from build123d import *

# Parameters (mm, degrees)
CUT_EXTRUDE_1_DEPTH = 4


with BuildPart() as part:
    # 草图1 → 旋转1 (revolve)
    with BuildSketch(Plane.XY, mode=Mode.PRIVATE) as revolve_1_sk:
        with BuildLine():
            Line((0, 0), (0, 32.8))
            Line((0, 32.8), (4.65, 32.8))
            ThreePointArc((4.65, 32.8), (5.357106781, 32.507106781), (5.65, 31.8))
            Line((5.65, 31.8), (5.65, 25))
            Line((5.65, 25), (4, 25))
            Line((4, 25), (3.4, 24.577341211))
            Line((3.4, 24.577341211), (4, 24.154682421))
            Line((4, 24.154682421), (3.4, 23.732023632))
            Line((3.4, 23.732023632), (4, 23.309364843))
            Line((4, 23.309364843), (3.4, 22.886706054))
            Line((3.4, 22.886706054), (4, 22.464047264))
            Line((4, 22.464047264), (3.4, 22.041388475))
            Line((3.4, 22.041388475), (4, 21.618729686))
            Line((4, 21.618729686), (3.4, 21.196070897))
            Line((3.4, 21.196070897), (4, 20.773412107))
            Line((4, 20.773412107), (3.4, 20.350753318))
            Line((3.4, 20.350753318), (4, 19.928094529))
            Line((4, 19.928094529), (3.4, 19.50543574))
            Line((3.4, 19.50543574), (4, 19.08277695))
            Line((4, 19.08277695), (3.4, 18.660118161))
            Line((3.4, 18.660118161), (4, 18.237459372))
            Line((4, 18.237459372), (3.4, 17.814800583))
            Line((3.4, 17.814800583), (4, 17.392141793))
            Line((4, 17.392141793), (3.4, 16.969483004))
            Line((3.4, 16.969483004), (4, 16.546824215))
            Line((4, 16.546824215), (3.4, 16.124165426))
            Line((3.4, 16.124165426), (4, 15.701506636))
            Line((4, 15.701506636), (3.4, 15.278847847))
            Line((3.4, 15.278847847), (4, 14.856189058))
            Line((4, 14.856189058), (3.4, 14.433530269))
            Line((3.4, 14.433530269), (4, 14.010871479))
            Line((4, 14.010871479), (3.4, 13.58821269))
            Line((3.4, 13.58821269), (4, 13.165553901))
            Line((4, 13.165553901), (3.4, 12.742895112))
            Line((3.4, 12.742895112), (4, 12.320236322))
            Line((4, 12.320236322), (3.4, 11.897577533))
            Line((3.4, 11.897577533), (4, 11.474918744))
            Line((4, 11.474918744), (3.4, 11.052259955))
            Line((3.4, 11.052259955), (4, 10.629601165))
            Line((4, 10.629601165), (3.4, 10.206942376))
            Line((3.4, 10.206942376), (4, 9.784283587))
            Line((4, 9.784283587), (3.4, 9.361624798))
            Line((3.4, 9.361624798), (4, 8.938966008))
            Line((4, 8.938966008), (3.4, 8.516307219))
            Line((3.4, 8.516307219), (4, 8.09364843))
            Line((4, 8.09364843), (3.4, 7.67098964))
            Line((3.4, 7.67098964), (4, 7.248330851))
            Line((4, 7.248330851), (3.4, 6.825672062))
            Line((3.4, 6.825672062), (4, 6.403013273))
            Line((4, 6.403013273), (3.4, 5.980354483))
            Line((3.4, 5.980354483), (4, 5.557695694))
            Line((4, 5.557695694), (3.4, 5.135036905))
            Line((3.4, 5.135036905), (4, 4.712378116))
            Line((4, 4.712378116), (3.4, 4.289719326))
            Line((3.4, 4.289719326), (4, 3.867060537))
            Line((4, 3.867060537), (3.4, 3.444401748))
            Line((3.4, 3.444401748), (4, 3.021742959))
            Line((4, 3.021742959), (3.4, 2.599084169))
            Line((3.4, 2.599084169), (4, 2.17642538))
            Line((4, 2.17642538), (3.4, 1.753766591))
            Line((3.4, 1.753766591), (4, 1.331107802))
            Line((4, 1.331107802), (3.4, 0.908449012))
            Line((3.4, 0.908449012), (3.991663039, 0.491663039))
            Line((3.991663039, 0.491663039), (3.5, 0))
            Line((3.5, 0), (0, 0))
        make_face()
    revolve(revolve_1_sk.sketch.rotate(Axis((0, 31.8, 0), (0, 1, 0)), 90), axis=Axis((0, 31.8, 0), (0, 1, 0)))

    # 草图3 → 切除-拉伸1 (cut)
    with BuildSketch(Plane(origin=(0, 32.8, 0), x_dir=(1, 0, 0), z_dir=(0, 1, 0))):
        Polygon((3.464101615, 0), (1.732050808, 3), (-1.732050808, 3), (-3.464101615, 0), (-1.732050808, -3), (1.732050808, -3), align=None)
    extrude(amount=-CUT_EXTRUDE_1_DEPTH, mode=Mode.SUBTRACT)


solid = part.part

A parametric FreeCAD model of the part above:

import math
import FreeCAD as App
import Part
import Sketcher
from FreeCAD import Vector
Q = App.Units.Quantity


def add_polygon(sketch, points):
    """Adds a closed chain of lines whose ends are joined by coincident constraints."""
    first, n = sketch.GeometryCount, len(points)
    for a, b in zip(points, points[1:] + points[:1]):
        sketch.addGeometry(Part.LineSegment(App.Vector(*a, 0), App.Vector(*b, 0)), False)
    for i in range(n):
        sketch.addConstraint(Sketcher.Constraint("Coincident", first + i, 2, first + (i + 1) % n, 1))

doc = App.newDocument("Part")
body = doc.addObject("PartDesign::Body", "Body")

# Sketch on XY plane
sketch1 = body.newObject("Sketcher::SketchObject", "Sketch")
sketch1.AttachmentSupport = (doc.getObject("XY_Plane"), [""])
sketch1.MapMode = "FlatFace"
sketch1.addGeometry(Part.LineSegment(Vector(0, 32.8, 0), Vector(0, 0, 0)), False)
sketch1.addGeometry(Part.LineSegment(Vector(0, 0, 0), Vector(3.5, 0, 0)), False)
sketch1.addGeometry(Part.LineSegment(Vector(3.5, 0, 0), Vector(4, 0.5, 0)), False)
sketch1.addGeometry(Part.LineSegment(Vector(4, 0.5, 0), Vector(3.4, 0.9, 0)), False)
sketch1.addGeometry(Part.LineSegment(Vector(3.4, 0.9, 0), Vector(4, 1.3, 0)), False)
sketch1.addGeometry(Part.LineSegment(Vector(4, 1.3, 0), Vector(3.4, 1.8, 0)), False)
sketch1.addGeometry(Part.LineSegment(Vector(3.4, 1.8, 0), Vector(4, 2.2, 0)), False)
sketch1.addGeometry(Part.LineSegment(Vector(4, 2.2, 0), Vector(3.4, 2.6, 0)), False)
sketch1.addGeometry(Part.LineSegment(Vector(3.4, 2.6, 0), Vector(4, 3, 0)), False)
sketch1.addGeometry(Part.LineSegment(Vector(4, 3, 0), Vector(3.4, 3.4, 0)), False)
sketch1.addGeometry(Part.LineSegment(Vector(3.4, 3.4, 0), Vector(4, 3.9, 0)), False)
sketch1.addGeometry(Part.LineSegment(Vector(4, 3.9, 0), Vector(3.4, 4.3, 0)), False)
sketch1.addGeometry(Part.LineSegment(Vector(3.4, 4.3, 0), Vector(4, 4.7, 0)), False)
sketch1.addGeometry(Part.LineSegment(Vector(4, 4.7, 0), Vector(3.4, 5.1, 0)), False)
sketch1.addGeometry(Part.LineSegment(Vector(3.4, 5.1, 0), Vector(4, 5.6, 0)), False)
sketch1.addGeometry(Part.LineSegment(Vector(4, 5.6, 0), Vector(3.4, 6, 0)), False)
sketch1.addGeometry(Part.LineSegment(Vector(3.4, 6, 0), Vector(4, 6.4, 0)), False)
sketch1.addGeometry(Part.LineSegment(Vector(4, 6.4, 0), Vector(3.4, 6.8, 0)), False)
sketch1.addGeometry(Part.LineSegment(Vector(3.4, 6.8, 0), Vector(4, 7.2, 0)), False)
sketch1.addGeometry(Part.LineSegment(Vector(4, 7.2, 0), Vector(3.4, 7.7, 0)), False)
sketch1.addGeometry(Part.LineSegment(Vector(3.4, 7.7, 0), Vector(4, 8.1, 0)), False)
sketch1.addGeometry(Part.LineSegment(Vector(4, 8.1, 0), Vector(3.4, 8.5, 0)), False)
sketch1.addGeometry(Part.LineSegment(Vector(3.4, 8.5, 0), Vector(4, 8.9, 0)), False)
sketch1.addGeometry(Part.LineSegment(Vector(4, 8.9, 0), Vector(3.4, 9.4, 0)), False)
sketch1.addGeometry(Part.LineSegment(Vector(3.4, 9.4, 0), Vector(4, 9.8, 0)), False)
sketch1.addGeometry(Part.LineSegment(Vector(4, 9.8, 0), Vector(3.4, 10.2, 0)), False)
sketch1.addGeometry(Part.LineSegment(Vector(3.4, 10.2, 0), Vector(4, 10.6, 0)), False)
sketch1.addGeometry(Part.LineSegment(Vector(4, 10.6, 0), Vector(3.4, 11.1, 0)), False)
sketch1.addGeometry(Part.LineSegment(Vector(3.4, 11.1, 0), Vector(4, 11.5, 0)), False)
sketch1.addGeometry(Part.LineSegment(Vector(4, 11.5, 0), Vector(3.4, 11.9, 0)), False)
sketch1.addGeometry(Part.LineSegment(Vector(3.4, 11.9, 0), Vector(4, 12.3, 0)), False)
sketch1.addGeometry(Part.LineSegment(Vector(4, 12.3, 0), Vector(3.4, 12.7, 0)), False)
sketch1.addGeometry(Part.LineSegment(Vector(3.4, 12.7, 0), Vector(4, 13.2, 0)), False)
sketch1.addGeometry(Part.LineSegment(Vector(4, 13.2, 0), Vector(3.4, 13.6, 0)), False)
sketch1.addGeometry(Part.LineSegment(Vector(3.4, 13.6, 0), Vector(4, 14, 0)), False)
sketch1.addGeometry(Part.LineSegment(Vector(4, 14, 0), Vector(3.4, 14.4, 0)), False)
sketch1.addGeometry(Part.LineSegment(Vector(3.4, 14.4, 0), Vector(4, 14.9, 0)), False)
sketch1.addGeometry(Part.LineSegment(Vector(4, 14.9, 0), Vector(3.4, 15.3, 0)), False)
sketch1.addGeometry(Part.LineSegment(Vector(3.4, 15.3, 0), Vector(4, 15.7, 0)), False)
sketch1.addGeometry(Part.LineSegment(Vector(4, 15.7, 0), Vector(3.4, 16.1, 0)), False)
sketch1.addGeometry(Part.LineSegment(Vector(3.4, 16.1, 0), Vector(4, 16.5, 0)), False)
sketch1.addGeometry(Part.LineSegment(Vector(4, 16.5, 0), Vector(3.4, 17, 0)), False)
sketch1.addGeometry(Part.LineSegment(Vector(3.4, 17, 0), Vector(4, 17.4, 0)), False)
sketch1.addGeometry(Part.LineSegment(Vector(4, 17.4, 0), Vector(3.4, 17.8, 0)), False)
sketch1.addGeometry(Part.LineSegment(Vector(3.4, 17.8, 0), Vector(4, 18.2, 0)), False)
sketch1.addGeometry(Part.LineSegment(Vector(4, 18.2, 0), Vector(3.4, 18.7, 0)), False)
sketch1.addGeometry(Part.LineSegment(Vector(3.4, 18.7, 0), Vector(4, 19.1, 0)), False)
sketch1.addGeometry(Part.LineSegment(Vector(4, 19.1, 0), Vector(3.4, 19.5, 0)), False)
sketch1.addGeometry(Part.LineSegment(Vector(3.4, 19.5, 0), Vector(4, 19.9, 0)), False)
sketch1.addGeometry(Part.LineSegment(Vector(4, 19.9, 0), Vector(3.4, 20.4, 0)), False)
sketch1.addGeometry(Part.LineSegment(Vector(3.4, 20.4, 0), Vector(4, 20.8, 0)), False)
sketch1.addGeometry(Part.LineSegment(Vector(4, 20.8, 0), Vector(3.4, 21.2, 0)), False)
sketch1.addGeometry(Part.LineSegment(Vector(3.4, 21.2, 0), Vector(4, 21.6, 0)), False)
sketch1.addGeometry(Part.LineSegment(Vector(4, 21.6, 0), Vector(3.4, 22, 0)), False)
sketch1.addGeometry(Part.LineSegment(Vector(3.4, 22, 0), Vector(4, 22.5, 0)), False)
sketch1.addGeometry(Part.LineSegment(Vector(4, 22.5, 0), Vector(3.4, 22.9, 0)), False)
sketch1.addGeometry(Part.LineSegment(Vector(3.4, 22.9, 0), Vector(4, 23.3, 0)), False)
sketch1.addGeometry(Part.LineSegment(Vector(4, 23.3, 0), Vector(3.4, 23.7, 0)), False)
sketch1.addGeometry(Part.LineSegment(Vector(3.4, 23.7, 0), Vector(4, 24.2, 0)), False)
sketch1.addGeometry(Part.LineSegment(Vector(4, 24.2, 0), Vector(3.4, 24.6, 0)), False)
sketch1.addGeometry(Part.LineSegment(Vector(3.4, 24.6, 0), Vector(4, 25, 0)), False)
sketch1.addGeometry(Part.LineSegment(Vector(4, 25, 0), Vector(5.7, 25, 0)), False)
sketch1.addGeometry(Part.LineSegment(Vector(5.7, 25, 0), Vector(5.7, 31.8, 0)), False)
sketch1.addGeometry(Part.ArcOfCircle(Part.Circle(Vector(4.6, 31.8, 0), Vector(0, 0, 1), 1), math.radians(0), math.radians(90)), False)
sketch1.addGeometry(Part.LineSegment(Vector(4.7, 32.8, 0), Vector(0, 32.8, 0)), False)
sketch1.addConstraint(Sketcher.Constraint("Coincident", 0, 2, 1, 1))
sketch1.addConstraint(Sketcher.Constraint("Coincident", 1, 2, 2, 1))
sketch1.addConstraint(Sketcher.Constraint("Coincident", 2, 2, 3, 1))
sketch1.addConstraint(Sketcher.Constraint("Coincident", 3, 2, 4, 1))
sketch1.addConstraint(Sketcher.Constraint("Coincident", 4, 2, 5, 1))
sketch1.addConstraint(Sketcher.Constraint("Coincident", 5, 2, 6, 1))
sketch1.addConstraint(Sketcher.Constraint("Coincident", 6, 2, 7, 1))
sketch1.addConstraint(Sketcher.Constraint("Coincident", 7, 2, 8, 1))
sketch1.addConstraint(Sketcher.Constraint("Coincident", 8, 2, 9, 1))
sketch1.addConstraint(Sketcher.Constraint("Coincident", 9, 2, 10, 1))
sketch1.addConstraint(Sketcher.Constraint("Coincident", 10, 2, 11, 1))
sketch1.addConstraint(Sketcher.Constraint("Coincident", 11, 2, 12, 1))
sketch1.addConstraint(Sketcher.Constraint("Coincident", 12, 2, 13, 1))
sketch1.addConstraint(Sketcher.Constraint("Coincident", 13, 2, 14, 1))
sketch1.addConstraint(Sketcher.Constraint("Coincident", 14, 2, 15, 1))
sketch1.addConstraint(Sketcher.Constraint("Coincident", 15, 2, 16, 1))
sketch1.addConstraint(Sketcher.Constraint("Coincident", 16, 2, 17, 1))
sketch1.addConstraint(Sketcher.Constraint("Coincident", 17, 2, 18, 1))
sketch1.addConstraint(Sketcher.Constraint("Coincident", 18, 2, 19, 1))
sketch1.addConstraint(Sketcher.Constraint("Coincident", 19, 2, 20, 1))
sketch1.addConstraint(Sketcher.Constraint("Coincident", 20, 2, 21, 1))
sketch1.addConstraint(Sketcher.Constraint("Coincident", 21, 2, 22, 1))
sketch1.addConstraint(Sketcher.Constraint("Coincident", 22, 2, 23, 1))
sketch1.addConstraint(Sketcher.Constraint("Coincident", 23, 2, 24, 1))
sketch1.addConstraint(Sketcher.Constraint("Coincident", 24, 2, 25, 1))
sketch1.addConstraint(Sketcher.Constraint("Coincident", 25, 2, 26, 1))
sketch1.addConstraint(Sketcher.Constraint("Coincident", 26, 2, 27, 1))
sketch1.addConstraint(Sketcher.Constraint("Coincident", 27, 2, 28, 1))
sketch1.addConstraint(Sketcher.Constraint("Coincident", 28, 2, 29, 1))
sketch1.addConstraint(Sketcher.Constraint("Coincident", 29, 2, 30, 1))
sketch1.addConstraint(Sketcher.Constraint("Coincident", 30, 2, 31, 1))
sketch1.addConstraint(Sketcher.Constraint("Coincident", 31, 2, 32, 1))
sketch1.addConstraint(Sketcher.Constraint("Coincident", 32, 2, 33, 1))
sketch1.addConstraint(Sketcher.Constraint("Coincident", 33, 2, 34, 1))
sketch1.addConstraint(Sketcher.Constraint("Coincident", 34, 2, 35, 1))
sketch1.addConstraint(Sketcher.Constraint("Coincident", 35, 2, 36, 1))
sketch1.addConstraint(Sketcher.Constraint("Coincident", 36, 2, 37, 1))
sketch1.addConstraint(Sketcher.Constraint("Coincident", 37, 2, 38, 1))
sketch1.addConstraint(Sketcher.Constraint("Coincident", 38, 2, 39, 1))
sketch1.addConstraint(Sketcher.Constraint("Coincident", 39, 2, 40, 1))
sketch1.addConstraint(Sketcher.Constraint("Coincident", 40, 2, 41, 1))
sketch1.addConstraint(Sketcher.Constraint("Coincident", 41, 2, 42, 1))
sketch1.addConstraint(Sketcher.Constraint("Coincident", 42, 2, 43, 1))
sketch1.addConstraint(Sketcher.Constraint("Coincident", 43, 2, 44, 1))
sketch1.addConstraint(Sketcher.Constraint("Coincident", 44, 2, 45, 1))
sketch1.addConstraint(Sketcher.Constraint("Coincident", 45, 2, 46, 1))
sketch1.addConstraint(Sketcher.Constraint("Coincident", 46, 2, 47, 1))
sketch1.addConstraint(Sketcher.Constraint("Coincident", 47, 2, 48, 1))
sketch1.addConstraint(Sketcher.Constraint("Coincident", 48, 2, 49, 1))
sketch1.addConstraint(Sketcher.Constraint("Coincident", 49, 2, 50, 1))
sketch1.addConstraint(Sketcher.Constraint("Coincident", 50, 2, 51, 1))
sketch1.addConstraint(Sketcher.Constraint("Coincident", 51, 2, 52, 1))
sketch1.addConstraint(Sketcher.Constraint("Coincident", 52, 2, 53, 1))
sketch1.addConstraint(Sketcher.Constraint("Coincident", 53, 2, 54, 1))
sketch1.addConstraint(Sketcher.Constraint("Coincident", 54, 2, 55, 1))
sketch1.addConstraint(Sketcher.Constraint("Coincident", 55, 2, 56, 1))
sketch1.addConstraint(Sketcher.Constraint("Coincident", 56, 2, 57, 1))
sketch1.addConstraint(Sketcher.Constraint("Coincident", 57, 2, 58, 1))
sketch1.addConstraint(Sketcher.Constraint("Coincident", 58, 2, 59, 1))
sketch1.addConstraint(Sketcher.Constraint("Coincident", 59, 2, 60, 1))
sketch1.addConstraint(Sketcher.Constraint("Coincident", 60, 2, 61, 1))
sketch1.addConstraint(Sketcher.Constraint("Coincident", 61, 2, 62, 1))
sketch1.addConstraint(Sketcher.Constraint("Tangent", 62, 2, 63, 1))
sketch1.addConstraint(Sketcher.Constraint("Tangent", 63, 2, 64, 1))
sketch1.addConstraint(Sketcher.Constraint("Coincident", 64, 2, 0, 1))
sketch1.addConstraint(Sketcher.Constraint("Vertical", 0))
sketch1.addConstraint(Sketcher.Constraint("Horizontal", 1))
sketch1.addConstraint(Sketcher.Constraint("Horizontal", 61))
sketch1.addConstraint(Sketcher.Constraint("Vertical", 62))
sketch1.addConstraint(Sketcher.Constraint("Horizontal", 64))
sketch1.addConstraint(Sketcher.Constraint("Coincident", 0, 2, -1, 1))
sketch1.addConstraint(Sketcher.Constraint("Parallel", 3, 5))
sketch1.addConstraint(Sketcher.Constraint("Parallel", 4, 6))
sketch1.addConstraint(Sketcher.Constraint("Parallel", 5, 7))
sketch1.addConstraint(Sketcher.Constraint("Parallel", 6, 8))
sketch1.addConstraint(Sketcher.Constraint("Parallel", 7, 9))
sketch1.addConstraint(Sketcher.Constraint("Parallel", 8, 10))
sketch1.addConstraint(Sketcher.Constraint("Parallel", 9, 11))
sketch1.addConstraint(Sketcher.Constraint("Parallel", 10, 12))
sketch1.addConstraint(Sketcher.Constraint("Parallel", 11, 13))
sketch1.addConstraint(Sketcher.Constraint("Parallel", 12, 14))
sketch1.addConstraint(Sketcher.Constraint("Parallel", 13, 15))
sketch1.addConstraint(Sketcher.Constraint("Parallel", 14, 16))
sketch1.addConstraint(Sketcher.Constraint("Parallel", 15, 17))
sketch1.addConstraint(Sketcher.Constraint("Parallel", 16, 18))
sketch1.addConstraint(Sketcher.Constraint("Parallel", 17, 19))
sketch1.addConstraint(Sketcher.Constraint("Parallel", 18, 20))
sketch1.addConstraint(Sketcher.Constraint("Parallel", 19, 21))
sketch1.addConstraint(Sketcher.Constraint("Parallel", 20, 22))
sketch1.addConstraint(Sketcher.Constraint("Parallel", 21, 23))
sketch1.addConstraint(Sketcher.Constraint("Parallel", 22, 24))
sketch1.addConstraint(Sketcher.Constraint("Parallel", 23, 25))
sketch1.addConstraint(Sketcher.Constraint("Parallel", 24, 26))
sketch1.addConstraint(Sketcher.Constraint("Parallel", 25, 27))
sketch1.addConstraint(Sketcher.Constraint("Parallel", 26, 28))
sketch1.addConstraint(Sketcher.Constraint("Parallel", 27, 29))
sketch1.addConstraint(Sketcher.Constraint("Parallel", 28, 30))
sketch1.addConstraint(Sketcher.Constraint("Parallel", 29, 31))
sketch1.addConstraint(Sketcher.Constraint("Parallel", 30, 32))
sketch1.addConstraint(Sketcher.Constraint("Parallel", 31, 33))
sketch1.addConstraint(Sketcher.Constraint("Parallel", 32, 34))
sketch1.addConstraint(Sketcher.Constraint("Parallel", 33, 35))
sketch1.addConstraint(Sketcher.Constraint("Parallel", 34, 36))
sketch1.addConstraint(Sketcher.Constraint("Parallel", 35, 37))
sketch1.addConstraint(Sketcher.Constraint("Parallel", 36, 38))
sketch1.addConstraint(Sketcher.Constraint("Parallel", 37, 39))
sketch1.addConstraint(Sketcher.Constraint("Parallel", 38, 40))
sketch1.addConstraint(Sketcher.Constraint("Parallel", 39, 41))
sketch1.addConstraint(Sketcher.Constraint("Parallel", 40, 42))
sketch1.addConstraint(Sketcher.Constraint("Parallel", 41, 43))
sketch1.addConstraint(Sketcher.Constraint("Parallel", 42, 44))
sketch1.addConstraint(Sketcher.Constraint("Parallel", 43, 45))
sketch1.addConstraint(Sketcher.Constraint("Parallel", 44, 46))
sketch1.addConstraint(Sketcher.Constraint("Parallel", 45, 47))
sketch1.addConstraint(Sketcher.Constraint("Parallel", 46, 48))
sketch1.addConstraint(Sketcher.Constraint("Parallel", 47, 49))
sketch1.addConstraint(Sketcher.Constraint("Parallel", 48, 50))
sketch1.addConstraint(Sketcher.Constraint("Parallel", 49, 51))
sketch1.addConstraint(Sketcher.Constraint("Parallel", 50, 52))
sketch1.addConstraint(Sketcher.Constraint("Parallel", 51, 53))
sketch1.addConstraint(Sketcher.Constraint("Parallel", 52, 54))
sketch1.addConstraint(Sketcher.Constraint("Parallel", 53, 55))
sketch1.addConstraint(Sketcher.Constraint("Parallel", 54, 56))
sketch1.addConstraint(Sketcher.Constraint("Parallel", 55, 57))
sketch1.addConstraint(Sketcher.Constraint("Parallel", 56, 58))
sketch1.addConstraint(Sketcher.Constraint("Parallel", 57, 59))
sketch1.addConstraint(Sketcher.Constraint("Parallel", 58, 60))
sketch1.addConstraint(Sketcher.Constraint("Vertical", 3, 2, 5, 2))
sketch1.addConstraint(Sketcher.Constraint("Vertical", 4, 2, 6, 2))
sketch1.addConstraint(Sketcher.Constraint("Vertical", 5, 2, 7, 2))
sketch1.addConstraint(Sketcher.Constraint("Vertical", 6, 2, 8, 2))
sketch1.addConstraint(Sketcher.Constraint("Vertical", 7, 2, 9, 2))
sketch1.addConstraint(Sketcher.Constraint("Vertical", 8, 2, 10, 2))
sketch1.addConstraint(Sketcher.Constraint("Vertical", 9, 2, 11, 2))
sketch1.addConstraint(Sketcher.Constraint("Vertical", 10, 2, 12, 2))
sketch1.addConstraint(Sketcher.Constraint("Vertical", 11, 2, 13, 2))
sketch1.addConstraint(Sketcher.Constraint("Vertical", 12, 2, 14, 2))
sketch1.addConstraint(Sketcher.Constraint("Vertical", 13, 2, 15, 2))
sketch1.addConstraint(Sketcher.Constraint("Vertical", 14, 2, 16, 2))
sketch1.addConstraint(Sketcher.Constraint("Vertical", 15, 2, 17, 2))
sketch1.addConstraint(Sketcher.Constraint("Vertical", 16, 2, 18, 2))
sketch1.addConstraint(Sketcher.Constraint("Vertical", 17, 2, 19, 2))
sketch1.addConstraint(Sketcher.Constraint("Vertical", 18, 2, 20, 2))
sketch1.addConstraint(Sketcher.Constraint("Vertical", 19, 2, 21, 2))
sketch1.addConstraint(Sketcher.Constraint("Vertical", 20, 2, 22, 2))
sketch1.addConstraint(Sketcher.Constraint("Vertical", 21, 2, 23, 2))
sketch1.addConstraint(Sketcher.Constraint("Vertical", 22, 2, 24, 2))
sketch1.addConstraint(Sketcher.Constraint("Vertical", 23, 2, 25, 2))
sketch1.addConstraint(Sketcher.Constraint("Vertical", 24, 2, 26, 2))
sketch1.addConstraint(Sketcher.Constraint("Vertical", 25, 2, 27, 2))
sketch1.addConstraint(Sketcher.Constraint("Vertical", 26, 2, 28, 2))
sketch1.addConstraint(Sketcher.Constraint("Vertical", 27, 2, 29, 2))
sketch1.addConstraint(Sketcher.Constraint("Vertical", 28, 2, 30, 2))
sketch1.addConstraint(Sketcher.Constraint("Vertical", 29, 2, 31, 2))
sketch1.addConstraint(Sketcher.Constraint("Vertical", 30, 2, 32, 2))
sketch1.addConstraint(Sketcher.Constraint("Vertical", 31, 2, 33, 2))
sketch1.addConstraint(Sketcher.Constraint("Vertical", 32, 2, 34, 2))
sketch1.addConstraint(Sketcher.Constraint("Vertical", 33, 2, 35, 2))
sketch1.addConstraint(Sketcher.Constraint("Vertical", 34, 2, 36, 2))
sketch1.addConstraint(Sketcher.Constraint("Vertical", 35, 2, 37, 2))
sketch1.addConstraint(Sketcher.Constraint("Vertical", 36, 2, 38, 2))
sketch1.addConstraint(Sketcher.Constraint("Vertical", 37, 2, 39, 2))
sketch1.addConstraint(Sketcher.Constraint("Vertical", 38, 2, 40, 2))
sketch1.addConstraint(Sketcher.Constraint("Vertical", 39, 2, 41, 2))
sketch1.addConstraint(Sketcher.Constraint("Vertical", 40, 2, 42, 2))
sketch1.addConstraint(Sketcher.Constraint("Vertical", 41, 2, 43, 2))
sketch1.addConstraint(Sketcher.Constraint("Vertical", 42, 2, 44, 2))
sketch1.addConstraint(Sketcher.Constraint("Vertical", 43, 2, 45, 2))
sketch1.addConstraint(Sketcher.Constraint("Vertical", 44, 2, 46, 2))
sketch1.addConstraint(Sketcher.Constraint("Vertical", 45, 2, 47, 2))
sketch1.addConstraint(Sketcher.Constraint("Vertical", 46, 2, 48, 2))
sketch1.addConstraint(Sketcher.Constraint("Vertical", 47, 2, 49, 2))
sketch1.addConstraint(Sketcher.Constraint("Vertical", 48, 2, 50, 2))
sketch1.addConstraint(Sketcher.Constraint("Vertical", 49, 2, 51, 2))
sketch1.addConstraint(Sketcher.Constraint("Vertical", 50, 2, 52, 2))
sketch1.addConstraint(Sketcher.Constraint("Vertical", 51, 2, 53, 2))
sketch1.addConstraint(Sketcher.Constraint("Vertical", 52, 2, 54, 2))
sketch1.addConstraint(Sketcher.Constraint("Vertical", 53, 2, 55, 2))
sketch1.addConstraint(Sketcher.Constraint("Vertical", 54, 2, 56, 2))
sketch1.addConstraint(Sketcher.Constraint("Vertical", 55, 2, 57, 2))
sketch1.addConstraint(Sketcher.Constraint("Vertical", 56, 2, 58, 2))
sketch1.addConstraint(Sketcher.Constraint("Vertical", 57, 2, 59, 2))
sketch1.addConstraint(Sketcher.Constraint("Vertical", 58, 2, 60, 2))
sketch1.addConstraint(Sketcher.Constraint("Equal", 4, 5))
sketch1.addConstraint(Sketcher.Constraint("Radius", 63, 1.0))
sketch1.addConstraint(Sketcher.Constraint("Angle", 2, Q("45 deg")))
sketch1.addConstraint(Sketcher.Constraint("DistanceX", 1, 1, 1, 2, 3.5))
sketch1.addConstraint(Sketcher.Constraint("DistanceY", 0, 2, 0, 1, 32.8))
sketch1.addConstraint(Sketcher.Constraint("DistanceY", 62, 1, 62, 2, 6.8))
sketch1.addConstraint(Sketcher.Constraint("DistanceX", -1, 1, 4, 2, 4.0))
sketch1.addConstraint(Sketcher.Constraint("DistanceX", 61, 1, 61, 2, 1.65))
sketch1.addConstraint(Sketcher.Constraint("DistanceX", -1, 1, 3, 2, 3.4))
sketch1.addConstraint(Sketcher.Constraint("DistanceY", -1, 1, 9, 2, 3.444402))
revolution = body.newObject("PartDesign::Revolution", "Revolution")
revolution.Profile = sketch1
revolution.ReferenceAxis = (sketch1, ["V_Axis"])
revolution.Angle = 360

# Sketch on XZ plane
sketch2 = body.newObject("Sketcher::SketchObject", "Sketch001")
sketch2.AttachmentSupport = (doc.getObject("XZ_Plane"), [""])
sketch2.MapMode = "FlatFace"
sketch2.AttachmentOffset = App.Placement(Vector(0, 0, -32.8), App.Rotation())
add_polygon(sketch2, [(3.5, 0), (1.7, -3), (-1.7, -3), (-3.5, 0), (-1.7, 3), (1.7, 3)])  # lines 0-5
sketch2.addConstraint(Sketcher.Constraint("Horizontal", 1))
sketch2.addConstraint(Sketcher.Constraint("Horizontal", 4))
sketch2.addConstraint(Sketcher.Constraint("Symmetric", 0, 2, 3, 2, -1, 1))
sketch2.addConstraint(Sketcher.Constraint("Symmetric", 2, 2, 5, 2, -1, 1))
sketch2.addConstraint(Sketcher.Constraint("PointOnObject", 2, 2, -1))
sketch2.addConstraint(Sketcher.Constraint("Parallel", 2, 5))
sketch2.addConstraint(Sketcher.Constraint("Vertical", 1, 2, 3, 2))
sketch2.addConstraint(Sketcher.Constraint("Angle", 0, Q("-120 deg")))
sketch2.addConstraint(Sketcher.Constraint("DistanceY", 0, 2, -1, 1, 3.0))
sketch2.addConstraint(Sketcher.Constraint("DistanceX", 1, 2, 1, 1, 3.464102))
pocket1 = body.newObject("PartDesign::Pocket", "Pocket")
pocket1.Profile = sketch2
pocket1.Length = 4
pocket1.Reversed = True

doc.recompute()
